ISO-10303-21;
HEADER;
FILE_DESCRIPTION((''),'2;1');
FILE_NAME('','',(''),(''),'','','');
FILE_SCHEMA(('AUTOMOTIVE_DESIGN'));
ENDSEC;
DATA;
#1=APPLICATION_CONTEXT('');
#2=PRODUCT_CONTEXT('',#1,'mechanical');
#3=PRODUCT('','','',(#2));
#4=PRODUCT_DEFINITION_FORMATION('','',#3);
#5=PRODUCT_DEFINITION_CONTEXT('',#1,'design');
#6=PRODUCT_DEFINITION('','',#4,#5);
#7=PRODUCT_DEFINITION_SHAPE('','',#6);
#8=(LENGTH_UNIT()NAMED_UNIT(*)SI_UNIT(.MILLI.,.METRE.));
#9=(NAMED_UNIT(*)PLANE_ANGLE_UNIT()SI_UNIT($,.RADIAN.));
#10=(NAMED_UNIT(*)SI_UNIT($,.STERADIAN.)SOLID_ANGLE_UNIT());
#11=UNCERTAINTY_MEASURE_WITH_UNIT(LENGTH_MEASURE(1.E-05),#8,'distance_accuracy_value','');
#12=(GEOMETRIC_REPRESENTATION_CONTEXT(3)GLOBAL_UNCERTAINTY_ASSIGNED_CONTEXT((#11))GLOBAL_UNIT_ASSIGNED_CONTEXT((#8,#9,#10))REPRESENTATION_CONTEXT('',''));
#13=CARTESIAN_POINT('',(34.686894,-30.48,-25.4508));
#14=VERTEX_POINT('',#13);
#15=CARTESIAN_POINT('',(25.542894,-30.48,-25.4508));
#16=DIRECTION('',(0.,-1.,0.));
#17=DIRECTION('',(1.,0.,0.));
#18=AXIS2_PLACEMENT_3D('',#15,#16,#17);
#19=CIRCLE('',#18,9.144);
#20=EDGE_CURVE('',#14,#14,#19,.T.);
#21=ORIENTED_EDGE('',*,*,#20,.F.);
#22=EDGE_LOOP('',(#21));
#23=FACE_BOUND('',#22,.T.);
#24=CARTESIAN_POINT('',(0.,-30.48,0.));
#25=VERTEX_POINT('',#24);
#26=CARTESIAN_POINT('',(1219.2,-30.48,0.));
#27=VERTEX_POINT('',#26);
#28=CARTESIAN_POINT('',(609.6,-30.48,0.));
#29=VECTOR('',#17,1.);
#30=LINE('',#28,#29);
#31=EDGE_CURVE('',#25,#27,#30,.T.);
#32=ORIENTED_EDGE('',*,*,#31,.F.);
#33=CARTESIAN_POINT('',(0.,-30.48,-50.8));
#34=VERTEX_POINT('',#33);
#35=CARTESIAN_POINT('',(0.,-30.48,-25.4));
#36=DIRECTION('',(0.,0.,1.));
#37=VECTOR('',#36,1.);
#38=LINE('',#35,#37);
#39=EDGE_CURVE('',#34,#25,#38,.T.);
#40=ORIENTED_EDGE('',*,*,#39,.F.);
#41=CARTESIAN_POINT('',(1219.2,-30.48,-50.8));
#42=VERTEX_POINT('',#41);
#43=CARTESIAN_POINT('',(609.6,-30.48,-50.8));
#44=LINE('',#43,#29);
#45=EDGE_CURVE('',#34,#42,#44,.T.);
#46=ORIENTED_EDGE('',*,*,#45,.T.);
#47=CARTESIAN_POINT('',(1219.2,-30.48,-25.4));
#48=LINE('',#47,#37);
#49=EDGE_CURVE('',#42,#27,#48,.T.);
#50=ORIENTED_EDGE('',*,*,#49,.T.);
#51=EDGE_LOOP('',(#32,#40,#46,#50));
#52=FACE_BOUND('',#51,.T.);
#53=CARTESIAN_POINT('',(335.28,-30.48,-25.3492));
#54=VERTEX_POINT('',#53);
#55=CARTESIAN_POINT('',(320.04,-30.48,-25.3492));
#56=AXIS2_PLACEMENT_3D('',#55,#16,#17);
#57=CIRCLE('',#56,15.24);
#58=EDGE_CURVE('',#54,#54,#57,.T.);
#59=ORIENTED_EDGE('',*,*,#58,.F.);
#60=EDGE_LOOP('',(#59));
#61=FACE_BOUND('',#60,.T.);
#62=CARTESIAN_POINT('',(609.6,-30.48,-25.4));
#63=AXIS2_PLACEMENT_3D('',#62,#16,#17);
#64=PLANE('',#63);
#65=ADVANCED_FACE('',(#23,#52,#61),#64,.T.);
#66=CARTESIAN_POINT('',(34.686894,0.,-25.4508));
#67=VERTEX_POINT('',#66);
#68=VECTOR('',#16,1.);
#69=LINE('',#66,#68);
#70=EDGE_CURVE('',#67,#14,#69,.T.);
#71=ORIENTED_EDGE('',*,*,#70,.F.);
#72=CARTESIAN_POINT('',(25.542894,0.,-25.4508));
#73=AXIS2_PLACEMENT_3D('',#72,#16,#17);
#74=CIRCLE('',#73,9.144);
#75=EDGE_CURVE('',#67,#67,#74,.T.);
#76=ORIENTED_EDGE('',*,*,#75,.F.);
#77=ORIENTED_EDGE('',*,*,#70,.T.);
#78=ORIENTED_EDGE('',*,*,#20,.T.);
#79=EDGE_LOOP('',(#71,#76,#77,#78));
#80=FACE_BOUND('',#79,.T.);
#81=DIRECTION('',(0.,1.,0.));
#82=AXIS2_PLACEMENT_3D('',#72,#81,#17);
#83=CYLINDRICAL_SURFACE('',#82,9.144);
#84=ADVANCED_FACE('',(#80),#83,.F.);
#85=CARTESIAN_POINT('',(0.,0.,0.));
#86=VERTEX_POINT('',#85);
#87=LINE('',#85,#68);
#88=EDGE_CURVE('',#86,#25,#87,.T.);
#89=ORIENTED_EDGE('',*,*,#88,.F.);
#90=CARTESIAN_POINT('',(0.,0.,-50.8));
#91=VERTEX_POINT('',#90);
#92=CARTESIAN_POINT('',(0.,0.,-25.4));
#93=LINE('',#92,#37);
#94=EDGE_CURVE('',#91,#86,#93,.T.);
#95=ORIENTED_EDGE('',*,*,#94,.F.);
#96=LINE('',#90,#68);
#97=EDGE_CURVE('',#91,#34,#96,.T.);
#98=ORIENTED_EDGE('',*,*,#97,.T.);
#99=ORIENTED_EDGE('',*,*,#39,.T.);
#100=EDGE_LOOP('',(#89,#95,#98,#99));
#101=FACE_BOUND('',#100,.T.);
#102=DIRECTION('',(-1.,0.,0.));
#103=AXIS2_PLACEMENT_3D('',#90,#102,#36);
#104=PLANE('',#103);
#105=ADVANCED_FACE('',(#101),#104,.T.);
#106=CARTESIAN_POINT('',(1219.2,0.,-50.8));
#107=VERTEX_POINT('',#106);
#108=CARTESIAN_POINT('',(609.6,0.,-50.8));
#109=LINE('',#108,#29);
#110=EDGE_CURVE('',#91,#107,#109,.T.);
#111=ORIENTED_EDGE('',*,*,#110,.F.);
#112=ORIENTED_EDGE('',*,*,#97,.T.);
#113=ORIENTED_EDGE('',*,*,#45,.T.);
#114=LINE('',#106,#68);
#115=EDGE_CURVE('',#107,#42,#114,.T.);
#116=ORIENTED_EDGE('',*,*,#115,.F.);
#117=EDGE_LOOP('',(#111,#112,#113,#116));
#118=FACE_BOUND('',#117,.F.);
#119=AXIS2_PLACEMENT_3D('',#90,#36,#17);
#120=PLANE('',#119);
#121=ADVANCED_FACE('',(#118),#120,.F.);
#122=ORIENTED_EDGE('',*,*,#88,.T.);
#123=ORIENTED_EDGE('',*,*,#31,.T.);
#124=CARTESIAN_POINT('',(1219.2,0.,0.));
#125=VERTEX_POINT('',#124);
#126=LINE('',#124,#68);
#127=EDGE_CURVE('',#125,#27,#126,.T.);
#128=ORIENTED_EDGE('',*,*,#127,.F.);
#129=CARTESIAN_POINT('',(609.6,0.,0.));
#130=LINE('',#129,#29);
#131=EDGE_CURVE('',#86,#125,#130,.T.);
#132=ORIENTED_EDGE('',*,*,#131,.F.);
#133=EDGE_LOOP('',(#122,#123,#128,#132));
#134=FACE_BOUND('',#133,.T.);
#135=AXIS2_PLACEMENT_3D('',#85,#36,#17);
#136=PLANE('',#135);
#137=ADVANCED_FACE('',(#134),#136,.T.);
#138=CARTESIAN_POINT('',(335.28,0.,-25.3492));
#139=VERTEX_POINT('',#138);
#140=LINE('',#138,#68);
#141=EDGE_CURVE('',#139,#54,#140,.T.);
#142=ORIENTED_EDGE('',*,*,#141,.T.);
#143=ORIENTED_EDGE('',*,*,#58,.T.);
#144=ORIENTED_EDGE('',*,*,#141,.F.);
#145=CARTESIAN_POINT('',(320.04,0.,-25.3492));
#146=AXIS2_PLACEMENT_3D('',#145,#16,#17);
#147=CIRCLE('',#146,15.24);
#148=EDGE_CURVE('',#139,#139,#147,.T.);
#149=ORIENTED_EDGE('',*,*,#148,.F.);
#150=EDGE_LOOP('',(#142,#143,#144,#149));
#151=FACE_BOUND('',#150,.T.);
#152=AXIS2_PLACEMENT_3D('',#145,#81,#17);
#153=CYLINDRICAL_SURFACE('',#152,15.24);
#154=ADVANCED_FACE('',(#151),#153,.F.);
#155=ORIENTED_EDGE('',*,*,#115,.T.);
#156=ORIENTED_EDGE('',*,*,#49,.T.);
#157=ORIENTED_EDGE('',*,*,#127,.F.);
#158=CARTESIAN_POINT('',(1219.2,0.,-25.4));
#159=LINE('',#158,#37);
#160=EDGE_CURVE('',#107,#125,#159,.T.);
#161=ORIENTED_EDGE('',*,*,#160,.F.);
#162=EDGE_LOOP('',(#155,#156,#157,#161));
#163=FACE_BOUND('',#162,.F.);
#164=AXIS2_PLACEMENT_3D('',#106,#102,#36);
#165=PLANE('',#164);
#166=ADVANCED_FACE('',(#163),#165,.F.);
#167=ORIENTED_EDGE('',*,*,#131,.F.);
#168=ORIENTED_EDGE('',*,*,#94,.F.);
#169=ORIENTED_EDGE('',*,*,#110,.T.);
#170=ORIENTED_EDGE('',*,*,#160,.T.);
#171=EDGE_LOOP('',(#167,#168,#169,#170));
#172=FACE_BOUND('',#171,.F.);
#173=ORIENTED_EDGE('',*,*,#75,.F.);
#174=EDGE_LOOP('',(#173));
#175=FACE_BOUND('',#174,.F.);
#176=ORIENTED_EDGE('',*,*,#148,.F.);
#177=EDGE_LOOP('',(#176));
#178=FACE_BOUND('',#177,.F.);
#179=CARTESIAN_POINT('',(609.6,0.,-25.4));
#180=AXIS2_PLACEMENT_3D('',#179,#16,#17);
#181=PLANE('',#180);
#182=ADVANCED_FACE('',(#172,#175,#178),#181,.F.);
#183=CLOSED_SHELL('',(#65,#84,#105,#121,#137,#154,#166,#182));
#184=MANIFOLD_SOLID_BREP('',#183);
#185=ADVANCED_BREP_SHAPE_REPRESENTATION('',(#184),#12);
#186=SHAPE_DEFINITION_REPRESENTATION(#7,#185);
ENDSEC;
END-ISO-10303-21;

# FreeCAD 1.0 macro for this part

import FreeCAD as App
import Part
import Sketcher
Q = App.Units.Quantity

doc = App.newDocument("Part")
body = doc.addObject("PartDesign::Body", "Body")

# Sketch on XZ plane
sketch1 = body.newObject("Sketcher::SketchObject", "Sketch")
sketch1.AttachmentSupport = (doc.getObject("XZ_Plane"), [""])
sketch1.MapMode = "FlatFace"
sketch1.addGeometry(Part.LineSegment(App.Vector(0, 0, 0), App.Vector(0, -51, 0)), False)
sketch1.addGeometry(Part.LineSegment(App.Vector(0, -51, 0), App.Vector(1219, -51, 0)), False)
sketch1.addGeometry(Part.LineSegment(App.Vector(1219, -51, 0), App.Vector(1219, 0, 0)), False)
sketch1.addGeometry(Part.LineSegment(App.Vector(1219, 0, 0), App.Vector(0, 0, 0)), False)
sketch1.addGeometry(Part.Circle(App.Vector(26, -25, 0), App.Vector(0, 0, 1), 9), False)
sketch1.addGeometry(Part.Circle(App.Vector(320, -25, 0), App.Vector(0, 0, 1), 15), False)
sketch1.addConstraint(Sketcher.Constraint("Coincident", 0, 2, 1, 1))
sketch1.addConstraint(Sketcher.Constraint("Coincident", 1, 2, 2, 1))
sketch1.addConstraint(Sketcher.Constraint("Coincident", 2, 2, 3, 1))
sketch1.addConstraint(Sketcher.Constraint("Coincident", 3, 2, 0, 1))
sketch1.addConstraint(Sketcher.Constraint("Vertical", 0))
sketch1.addConstraint(Sketcher.Constraint("Horizontal", 1))
sketch1.addConstraint(Sketcher.Constraint("Vertical", 2))
sketch1.addConstraint(Sketcher.Constraint("Horizontal", 3))
sketch1.addConstraint(Sketcher.Constraint("Coincident", 3, 2, -1, 1))
sketch1.addConstraint(Sketcher.Constraint("Diameter", 5, Q("1.2 in")))
sketch1.addConstraint(Sketcher.Constraint("Diameter", 4, Q("0.72 in")))
sketch1.addConstraint(Sketcher.Constraint("DistanceX", 1, 1, 1, 2, Q("48 in")))
sketch1.addConstraint(Sketcher.Constraint("DistanceY", 0, 2, 0, 1, Q("2 in")))
sketch1.addConstraint(Sketcher.Constraint("DistanceX", -1, 1, 5, 3, Q("12.6 in")))
sketch1.addConstraint(Sketcher.Constraint("DistanceY", 4, 3, -1, 1, Q("1.002 in")))
sketch1.addConstraint(Sketcher.Constraint("DistanceY", 5, 3, -1, 1, Q("0.998 in")))
sketch1.addConstraint(Sketcher.Constraint("DistanceX", -1, 1, 4, 3, 25.542894))
pad1 = body.newObject("PartDesign::Pad", "Pad")
pad1.Profile = sketch1
pad1.Length = Q("1.2 in")

# Sketch on XZ plane
sketch2 = body.newObject("Sketcher::SketchObject", "Sketch001")
sketch2.AttachmentSupport = (doc.getObject("XZ_Plane"), [""])
sketch2.MapMode = "FlatFace"
sketch2.addGeometry(Part.LineSegment(App.Vector(0, 0, 0), App.Vector(0, -51, 0)), False)
sketch2.addGeometry(Part.LineSegment(App.Vector(0, -51, 0), App.Vector(1219, -51, 0)), False)
sketch2.addGeometry(Part.LineSegment(App.Vector(1219, -51, 0), App.Vector(1219, 0, 0)), False)
sketch2.addGeometry(Part.LineSegment(App.Vector(1219, 0, 0), App.Vector(0, 0, 0)), False)
sketch2.addGeometry(Part.Circle(App.Vector(26, -25, 0), App.Vector(0, 0, 1), 9), False)
sketch2.addGeometry(Part.Circle(App.Vector(320, -25, 0), App.Vector(0, 0, 1), 15), False)
sketch2.addConstraint(Sketcher.Constraint("Coincident", 0, 2, 1, 1))
sketch2.addConstraint(Sketcher.Constraint("Coincident", 1, 2, 2, 1))
sketch2.addConstraint(Sketcher.Constraint("Coincident", 2, 2, 3, 1))
sketch2.addConstraint(Sketcher.Constraint("Coincident", 3, 2, 0, 1))
sketch2.addConstraint(Sketcher.Constraint("Vertical", 0))
sketch2.addConstraint(Sketcher.Constraint("Horizontal", 1))
sketch2.addConstraint(Sketcher.Constraint("Vertical", 2))
sketch2.addConstraint(Sketcher.Constraint("Horizontal", 3))
sketch2.addConstraint(Sketcher.Constraint("Coincident", 3, 2, -1, 1))
sketch2.addConstraint(Sketcher.Constraint("Diameter", 5, Q("1.2 in")))
sketch2.addConstraint(Sketcher.Constraint("Diameter", 4, Q("0.72 in")))
sketch2.addConstraint(Sketcher.Constraint("DistanceX", 1, 1, 1, 2, Q("48 in")))
sketch2.addConstraint(Sketcher.Constraint("DistanceY", 0, 2, 0, 1, Q("2 in")))
sketch2.addConstraint(Sketcher.Constraint("DistanceX", -1, 1, 5, 3, Q("12.6 in")))
sketch2.addConstraint(Sketcher.Constraint("DistanceY", 4, 3, -1, 1, Q("1.002 in")))
sketch2.addConstraint(Sketcher.Constraint("DistanceY", 5, 3, -1, 1, Q("0.998 in")))
sketch2.addConstraint(Sketcher.Constraint("DistanceX", -1, 1, 4, 3, 25.542894))
pad2 = body.newObject("PartDesign::Pad", "Pad001")
pad2.Profile = sketch2
pad2.Length = Q("1.2 in")

# Sketch on XZ plane
sketch3 = body.newObject("Sketcher::SketchObject", "Sketch002")
sketch3.AttachmentSupport = (doc.getObject("XZ_Plane"), [""])
sketch3.MapMode = "FlatFace"
sketch3.addGeometry(Part.LineSegment(App.Vector(0, 0, 0), App.Vector(0, -51, 0)), False)
sketch3.addGeometry(Part.LineSegment(App.Vector(0, -51, 0), App.Vector(1219, -51, 0)), False)
sketch3.addGeometry(Part.LineSegment(App.Vector(1219, -51, 0), App.Vector(1219, 0, 0)), False)
sketch3.addGeometry(Part.LineSegment(App.Vector(1219, 0, 0), App.Vector(0, 0, 0)), False)
sketch3.addGeometry(Part.Circle(App.Vector(26, -25, 0), App.Vector(0, 0, 1), 9), False)
sketch3.addGeometry(Part.Circle(App.Vector(320, -25, 0), App.Vector(0, 0, 1), 15), False)
sketch3.addConstraint(Sketcher.Constraint("Coincident", 0, 2, 1, 1))
sketch3.addConstraint(Sketcher.Constraint("Coincident", 1, 2, 2, 1))
sketch3.addConstraint(Sketcher.Constraint("Coincident", 2, 2, 3, 1))
sketch3.addConstraint(Sketcher.Constraint("Coincident", 3, 2, 0, 1))
sketch3.addConstraint(Sketcher.Constraint("Vertical", 0))
sketch3.addConstraint(Sketcher.Constraint("Horizontal", 1))
sketch3.addConstraint(Sketcher.Constraint("Vertical", 2))
sketch3.addConstraint(Sketcher.Constraint("Horizontal", 3))
sketch3.addConstraint(Sketcher.Constraint("Coincident", 3, 2, -1, 1))
sketch3.addConstraint(Sketcher.Constraint("Diameter", 5, Q("1.2 in")))
sketch3.addConstraint(Sketcher.Constraint("Diameter", 4, Q("0.72 in")))
sketch3.addConstraint(Sketcher.Constraint("DistanceX", 1, 1, 1, 2, Q("48 in")))
sketch3.addConstraint(Sketcher.Constraint("DistanceY", 0, 2, 0, 1, Q("2 in")))
sketch3.addConstraint(Sketcher.Constraint("DistanceX", -1, 1, 5, 3, Q("12.6 in")))
sketch3.addConstraint(Sketcher.Constraint("DistanceY", 4, 3, -1, 1, Q("1.002 in")))
sketch3.addConstraint(Sketcher.Constraint("DistanceY", 5, 3, -1, 1, Q("0.998 in")))
sketch3.addConstraint(Sketcher.Constraint("DistanceX", -1, 1, 4, 3, 25.542894))
pad3 = body.newObject("PartDesign::Pad", "Pad002")
pad3.Profile = sketch3
pad3.Length = Q("1.2 in")

# Sketch on XZ plane
sketch4 = body.newObject("Sketcher::SketchObject", "Sketch003")
sketch4.AttachmentSupport = (doc.getObject("XZ_Plane"), [""])
sketch4.MapMode = "FlatFace"
sketch4.addGeometry(Part.LineSegment(App.Vector(0, 0, 0), App.Vector(0, -51, 0)), False)
sketch4.addGeometry(Part.LineSegment(App.Vector(0, -51, 0), App.Vector(1219, -51, 0)), False)
sketch4.addGeometry(Part.LineSegment(App.Vector(1219, -51, 0), App.Vector(1219, 0, 0)), False)
sketch4.addGeometry(Part.LineSegment(App.Vector(1219, 0, 0), App.Vector(0, 0, 0)), False)
sketch4.addGeometry(Part.Circle(App.Vector(26, -25, 0), App.Vector(0, 0, 1), 9), False)
sketch4.addGeometry(Part.Circle(App.Vector(320, -25, 0), App.Vector(0, 0, 1), 15), False)
sketch4.addConstraint(Sketcher.Constraint("Coincident", 0, 2, 1, 1))
sketch4.addConstraint(Sketcher.Constraint("Coincident", 1, 2, 2, 1))
sketch4.addConstraint(Sketcher.Constraint("Coincident", 2, 2, 3, 1))
sketch4.addConstraint(Sketcher.Constraint("Coincident", 3, 2, 0, 1))
sketch4.addConstraint(Sketcher.Constraint("Vertical", 0))
sketch4.addConstraint(Sketcher.Constraint("Horizontal", 1))
sketch4.addConstraint(Sketcher.Constraint("Vertical", 2))
sketch4.addConstraint(Sketcher.Constraint("Horizontal", 3))
sketch4.addConstraint(Sketcher.Constraint("Coincident", 3, 2, -1, 1))
sketch4.addConstraint(Sketcher.Constraint("Diameter", 5, Q("1.2 in")))
sketch4.addConstraint(Sketcher.Constraint("Diameter", 4, Q("0.72 in")))
sketch4.addConstraint(Sketcher.Constraint("DistanceX", 1, 1, 1, 2, Q("48 in")))
sketch4.addConstraint(Sketcher.Constraint("DistanceY", 0, 2, 0, 1, Q("2 in")))
sketch4.addConstraint(Sketcher.Constraint("DistanceX", -1, 1, 5, 3, Q("12.6 in")))
sketch4.addConstraint(Sketcher.Constraint("DistanceY", 4, 3, -1, 1, Q("1.002 in")))
sketch4.addConstraint(Sketcher.Constraint("DistanceY", 5, 3, -1, 1, Q("0.998 in")))
sketch4.addConstraint(Sketcher.Constraint("DistanceX", -1, 1, 4, 3, 25.542894))
pad4 = body.newObject("PartDesign::Pad", "Pad003")
pad4.Profile = sketch4
pad4.Length = Q("1.2 in")

doc.recompute()
